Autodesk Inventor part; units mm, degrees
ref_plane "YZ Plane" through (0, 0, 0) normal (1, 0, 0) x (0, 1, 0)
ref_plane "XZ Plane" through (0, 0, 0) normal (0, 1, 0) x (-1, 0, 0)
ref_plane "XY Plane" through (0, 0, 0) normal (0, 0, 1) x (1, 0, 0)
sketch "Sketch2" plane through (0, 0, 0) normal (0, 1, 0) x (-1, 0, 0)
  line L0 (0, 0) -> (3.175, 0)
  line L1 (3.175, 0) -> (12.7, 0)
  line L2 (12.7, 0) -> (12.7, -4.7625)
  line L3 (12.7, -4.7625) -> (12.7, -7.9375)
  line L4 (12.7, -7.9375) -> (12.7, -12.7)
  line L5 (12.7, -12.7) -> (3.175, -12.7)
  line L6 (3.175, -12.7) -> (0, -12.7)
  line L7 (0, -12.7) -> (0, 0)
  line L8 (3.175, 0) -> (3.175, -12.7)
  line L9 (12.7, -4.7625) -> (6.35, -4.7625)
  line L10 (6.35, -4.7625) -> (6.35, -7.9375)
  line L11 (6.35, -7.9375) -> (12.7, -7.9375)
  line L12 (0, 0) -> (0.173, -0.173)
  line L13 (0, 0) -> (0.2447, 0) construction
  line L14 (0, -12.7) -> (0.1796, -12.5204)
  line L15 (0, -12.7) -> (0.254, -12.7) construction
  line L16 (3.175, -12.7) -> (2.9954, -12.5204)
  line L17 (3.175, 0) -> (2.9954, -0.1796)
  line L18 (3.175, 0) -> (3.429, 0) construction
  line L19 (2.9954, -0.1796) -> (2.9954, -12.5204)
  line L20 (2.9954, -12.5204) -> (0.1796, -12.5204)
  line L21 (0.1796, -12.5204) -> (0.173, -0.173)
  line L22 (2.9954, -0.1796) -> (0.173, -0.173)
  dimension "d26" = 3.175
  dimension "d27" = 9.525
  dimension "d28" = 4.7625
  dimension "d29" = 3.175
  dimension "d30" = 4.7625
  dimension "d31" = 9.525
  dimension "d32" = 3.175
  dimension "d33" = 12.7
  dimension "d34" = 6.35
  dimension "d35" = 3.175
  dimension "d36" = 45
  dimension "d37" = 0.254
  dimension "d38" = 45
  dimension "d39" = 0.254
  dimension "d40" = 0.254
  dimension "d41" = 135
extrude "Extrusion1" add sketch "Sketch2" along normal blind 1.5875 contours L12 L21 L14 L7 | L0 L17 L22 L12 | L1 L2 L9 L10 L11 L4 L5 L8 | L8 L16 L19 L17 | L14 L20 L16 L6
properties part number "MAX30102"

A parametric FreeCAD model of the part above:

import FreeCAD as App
import Part
import Sketcher
from FreeCAD import Vector
Q = App.Units.Quantity

doc = App.newDocument("Part")
body = doc.addObject("PartDesign::Body", "Body")

# Sketch on XZ plane
sketch1 = body.newObject("Sketcher::SketchObject", "Sketch")
sketch1.AttachmentSupport = (doc.getObject("XZ_Plane"), [""])
sketch1.MapMode = "FlatFace"
sketch1.addGeometry(Part.LineSegment(Vector(0, 0, 0), Vector(0, -12.7, 0)), False)
sketch1.addGeometry(Part.LineSegment(Vector(0, -12.7, 0), Vector(-12.7, -12.7, 0)), False)
sketch1.addGeometry(Part.LineSegment(Vector(-12.7, -12.7, 0), Vector(-12.7, -7.9375, 0)), False)
sketch1.addGeometry(Part.LineSegment(Vector(-12.7, -7.9375, 0), Vector(-6.35, -7.9375, 0)), False)
sketch1.addGeometry(Part.LineSegment(Vector(-6.35, -7.9375, 0), Vector(-6.35, -4.7625, 0)), False)
sketch1.addGeometry(Part.LineSegment(Vector(-6.35, -4.7625, 0), Vector(-12.7, -4.7625, 0)), False)
sketch1.addGeometry(Part.LineSegment(Vector(-12.7, -4.7625, 0), Vector(-12.7, 0, 0)), False)
sketch1.addGeometry(Part.LineSegment(Vector(-12.7, 0, 0), Vector(0, 0, 0)), False)
sketch1.addGeometry(Part.LineSegment(Vector(-0.1796, -12.5204, 0), Vector(-0.173, -0.173, 0)), False)
sketch1.addGeometry(Part.LineSegment(Vector(-0.173, -0.173, 0), Vector(-2.9954, -0.1796, 0)), False)
sketch1.addGeometry(Part.LineSegment(Vector(-2.9954, -0.1796, 0), Vector(-2.9954, -12.5204, 0)), False)
sketch1.addGeometry(Part.LineSegment(Vector(-2.9954, -12.5204, 0), Vector(-0.1796, -12.5204, 0)), False)
sketch1.addConstraint(Sketcher.Constraint("Coincident", 0, 2, 1, 1))
sketch1.addConstraint(Sketcher.Constraint("Coincident", 1, 2, 2, 1))
sketch1.addConstraint(Sketcher.Constraint("Coincident", 2, 2, 3, 1))
sketch1.addConstraint(Sketcher.Constraint("Coincident", 3, 2, 4, 1))
sketch1.addConstraint(Sketcher.Constraint("Coincident", 4, 2, 5, 1))
sketch1.addConstraint(Sketcher.Constraint("Coincident", 5, 2, 6, 1))
sketch1.addConstraint(Sketcher.Constraint("Coincident", 6, 2, 7, 1))
sketch1.addConstraint(Sketcher.Constraint("Coincident", 7, 2, 0, 1))
sketch1.addConstraint(Sketcher.Constraint("Coincident", 8, 2, 9, 1))
sketch1.addConstraint(Sketcher.Constraint("Coincident", 9, 2, 10, 1))
sketch1.addConstraint(Sketcher.Constraint("Coincident", 10, 2, 11, 1))
sketch1.addConstraint(Sketcher.Constraint("Coincident", 11, 2, 8, 1))
sketch1.addConstraint(Sketcher.Constraint("Vertical", 0))
sketch1.addConstraint(Sketcher.Constraint("Horizontal", 1))
sketch1.addConstraint(Sketcher.Constraint("Vertical", 2))
sketch1.addConstraint(Sketcher.Constraint("Horizontal", 3))
sketch1.addConstraint(Sketcher.Constraint("Vertical", 4))
sketch1.addConstraint(Sketcher.Constraint("Horizontal", 5))
sketch1.addConstraint(Sketcher.Constraint("Vertical", 6))
sketch1.addConstraint(Sketcher.Constraint("Horizontal", 7))
sketch1.addConstraint(Sketcher.Constraint("Vertical", 10))
sketch1.addConstraint(Sketcher.Constraint("Horizontal", 11))
sketch1.addConstraint(Sketcher.Constraint("Coincident", 7, 2, -1, 1))
sketch1.addConstraint(Sketcher.Constraint("Vertical", 2, 2, 5, 2))
sketch1.addConstraint(Sketcher.Constraint("Equal", 7, 0))
sketch1.addConstraint(Sketcher.Constraint("Equal", 2, 6))
sketch1.addConstraint(Sketcher.Constraint("DistanceX", 1, 2, 1, 1, Q("0.5 in")))
sketch1.addConstraint(Sketcher.Constraint("DistanceX", 3, 1, 3, 2, Q("0.25 in")))
sketch1.addConstraint(Sketcher.Constraint("DistanceY", 2, 1, 2, 2, Q("0.1875 in")))
sketch1.addConstraint(Sketcher.Constraint("Angle", 8, Q("89.9694 deg")))
sketch1.addConstraint(Sketcher.Constraint("DistanceX", 11, 1, 11, 2, Q("2.8158 mm")))
sketch1.addConstraint(Sketcher.Constraint("DistanceY", 10, 2, 10, 1, Q("12.3408 mm")))
sketch1.addConstraint(Sketcher.Constraint("DistanceX", 8, 2, -1, 1, Q("0.0068 in")))
sketch1.addConstraint(Sketcher.Constraint("DistanceY", 8, 2, -1, 1, Q("0.0068 in")))
sketch1.addConstraint(Sketcher.Constraint("Distance", 8, Q("12.3474 mm")))
pad1 = body.newObject("PartDesign::Pad", "Pad")
pad1.Profile = sketch1
pad1.Length = Q("0.0625 in")
pad1.Reversed = True

doc.recompute()
